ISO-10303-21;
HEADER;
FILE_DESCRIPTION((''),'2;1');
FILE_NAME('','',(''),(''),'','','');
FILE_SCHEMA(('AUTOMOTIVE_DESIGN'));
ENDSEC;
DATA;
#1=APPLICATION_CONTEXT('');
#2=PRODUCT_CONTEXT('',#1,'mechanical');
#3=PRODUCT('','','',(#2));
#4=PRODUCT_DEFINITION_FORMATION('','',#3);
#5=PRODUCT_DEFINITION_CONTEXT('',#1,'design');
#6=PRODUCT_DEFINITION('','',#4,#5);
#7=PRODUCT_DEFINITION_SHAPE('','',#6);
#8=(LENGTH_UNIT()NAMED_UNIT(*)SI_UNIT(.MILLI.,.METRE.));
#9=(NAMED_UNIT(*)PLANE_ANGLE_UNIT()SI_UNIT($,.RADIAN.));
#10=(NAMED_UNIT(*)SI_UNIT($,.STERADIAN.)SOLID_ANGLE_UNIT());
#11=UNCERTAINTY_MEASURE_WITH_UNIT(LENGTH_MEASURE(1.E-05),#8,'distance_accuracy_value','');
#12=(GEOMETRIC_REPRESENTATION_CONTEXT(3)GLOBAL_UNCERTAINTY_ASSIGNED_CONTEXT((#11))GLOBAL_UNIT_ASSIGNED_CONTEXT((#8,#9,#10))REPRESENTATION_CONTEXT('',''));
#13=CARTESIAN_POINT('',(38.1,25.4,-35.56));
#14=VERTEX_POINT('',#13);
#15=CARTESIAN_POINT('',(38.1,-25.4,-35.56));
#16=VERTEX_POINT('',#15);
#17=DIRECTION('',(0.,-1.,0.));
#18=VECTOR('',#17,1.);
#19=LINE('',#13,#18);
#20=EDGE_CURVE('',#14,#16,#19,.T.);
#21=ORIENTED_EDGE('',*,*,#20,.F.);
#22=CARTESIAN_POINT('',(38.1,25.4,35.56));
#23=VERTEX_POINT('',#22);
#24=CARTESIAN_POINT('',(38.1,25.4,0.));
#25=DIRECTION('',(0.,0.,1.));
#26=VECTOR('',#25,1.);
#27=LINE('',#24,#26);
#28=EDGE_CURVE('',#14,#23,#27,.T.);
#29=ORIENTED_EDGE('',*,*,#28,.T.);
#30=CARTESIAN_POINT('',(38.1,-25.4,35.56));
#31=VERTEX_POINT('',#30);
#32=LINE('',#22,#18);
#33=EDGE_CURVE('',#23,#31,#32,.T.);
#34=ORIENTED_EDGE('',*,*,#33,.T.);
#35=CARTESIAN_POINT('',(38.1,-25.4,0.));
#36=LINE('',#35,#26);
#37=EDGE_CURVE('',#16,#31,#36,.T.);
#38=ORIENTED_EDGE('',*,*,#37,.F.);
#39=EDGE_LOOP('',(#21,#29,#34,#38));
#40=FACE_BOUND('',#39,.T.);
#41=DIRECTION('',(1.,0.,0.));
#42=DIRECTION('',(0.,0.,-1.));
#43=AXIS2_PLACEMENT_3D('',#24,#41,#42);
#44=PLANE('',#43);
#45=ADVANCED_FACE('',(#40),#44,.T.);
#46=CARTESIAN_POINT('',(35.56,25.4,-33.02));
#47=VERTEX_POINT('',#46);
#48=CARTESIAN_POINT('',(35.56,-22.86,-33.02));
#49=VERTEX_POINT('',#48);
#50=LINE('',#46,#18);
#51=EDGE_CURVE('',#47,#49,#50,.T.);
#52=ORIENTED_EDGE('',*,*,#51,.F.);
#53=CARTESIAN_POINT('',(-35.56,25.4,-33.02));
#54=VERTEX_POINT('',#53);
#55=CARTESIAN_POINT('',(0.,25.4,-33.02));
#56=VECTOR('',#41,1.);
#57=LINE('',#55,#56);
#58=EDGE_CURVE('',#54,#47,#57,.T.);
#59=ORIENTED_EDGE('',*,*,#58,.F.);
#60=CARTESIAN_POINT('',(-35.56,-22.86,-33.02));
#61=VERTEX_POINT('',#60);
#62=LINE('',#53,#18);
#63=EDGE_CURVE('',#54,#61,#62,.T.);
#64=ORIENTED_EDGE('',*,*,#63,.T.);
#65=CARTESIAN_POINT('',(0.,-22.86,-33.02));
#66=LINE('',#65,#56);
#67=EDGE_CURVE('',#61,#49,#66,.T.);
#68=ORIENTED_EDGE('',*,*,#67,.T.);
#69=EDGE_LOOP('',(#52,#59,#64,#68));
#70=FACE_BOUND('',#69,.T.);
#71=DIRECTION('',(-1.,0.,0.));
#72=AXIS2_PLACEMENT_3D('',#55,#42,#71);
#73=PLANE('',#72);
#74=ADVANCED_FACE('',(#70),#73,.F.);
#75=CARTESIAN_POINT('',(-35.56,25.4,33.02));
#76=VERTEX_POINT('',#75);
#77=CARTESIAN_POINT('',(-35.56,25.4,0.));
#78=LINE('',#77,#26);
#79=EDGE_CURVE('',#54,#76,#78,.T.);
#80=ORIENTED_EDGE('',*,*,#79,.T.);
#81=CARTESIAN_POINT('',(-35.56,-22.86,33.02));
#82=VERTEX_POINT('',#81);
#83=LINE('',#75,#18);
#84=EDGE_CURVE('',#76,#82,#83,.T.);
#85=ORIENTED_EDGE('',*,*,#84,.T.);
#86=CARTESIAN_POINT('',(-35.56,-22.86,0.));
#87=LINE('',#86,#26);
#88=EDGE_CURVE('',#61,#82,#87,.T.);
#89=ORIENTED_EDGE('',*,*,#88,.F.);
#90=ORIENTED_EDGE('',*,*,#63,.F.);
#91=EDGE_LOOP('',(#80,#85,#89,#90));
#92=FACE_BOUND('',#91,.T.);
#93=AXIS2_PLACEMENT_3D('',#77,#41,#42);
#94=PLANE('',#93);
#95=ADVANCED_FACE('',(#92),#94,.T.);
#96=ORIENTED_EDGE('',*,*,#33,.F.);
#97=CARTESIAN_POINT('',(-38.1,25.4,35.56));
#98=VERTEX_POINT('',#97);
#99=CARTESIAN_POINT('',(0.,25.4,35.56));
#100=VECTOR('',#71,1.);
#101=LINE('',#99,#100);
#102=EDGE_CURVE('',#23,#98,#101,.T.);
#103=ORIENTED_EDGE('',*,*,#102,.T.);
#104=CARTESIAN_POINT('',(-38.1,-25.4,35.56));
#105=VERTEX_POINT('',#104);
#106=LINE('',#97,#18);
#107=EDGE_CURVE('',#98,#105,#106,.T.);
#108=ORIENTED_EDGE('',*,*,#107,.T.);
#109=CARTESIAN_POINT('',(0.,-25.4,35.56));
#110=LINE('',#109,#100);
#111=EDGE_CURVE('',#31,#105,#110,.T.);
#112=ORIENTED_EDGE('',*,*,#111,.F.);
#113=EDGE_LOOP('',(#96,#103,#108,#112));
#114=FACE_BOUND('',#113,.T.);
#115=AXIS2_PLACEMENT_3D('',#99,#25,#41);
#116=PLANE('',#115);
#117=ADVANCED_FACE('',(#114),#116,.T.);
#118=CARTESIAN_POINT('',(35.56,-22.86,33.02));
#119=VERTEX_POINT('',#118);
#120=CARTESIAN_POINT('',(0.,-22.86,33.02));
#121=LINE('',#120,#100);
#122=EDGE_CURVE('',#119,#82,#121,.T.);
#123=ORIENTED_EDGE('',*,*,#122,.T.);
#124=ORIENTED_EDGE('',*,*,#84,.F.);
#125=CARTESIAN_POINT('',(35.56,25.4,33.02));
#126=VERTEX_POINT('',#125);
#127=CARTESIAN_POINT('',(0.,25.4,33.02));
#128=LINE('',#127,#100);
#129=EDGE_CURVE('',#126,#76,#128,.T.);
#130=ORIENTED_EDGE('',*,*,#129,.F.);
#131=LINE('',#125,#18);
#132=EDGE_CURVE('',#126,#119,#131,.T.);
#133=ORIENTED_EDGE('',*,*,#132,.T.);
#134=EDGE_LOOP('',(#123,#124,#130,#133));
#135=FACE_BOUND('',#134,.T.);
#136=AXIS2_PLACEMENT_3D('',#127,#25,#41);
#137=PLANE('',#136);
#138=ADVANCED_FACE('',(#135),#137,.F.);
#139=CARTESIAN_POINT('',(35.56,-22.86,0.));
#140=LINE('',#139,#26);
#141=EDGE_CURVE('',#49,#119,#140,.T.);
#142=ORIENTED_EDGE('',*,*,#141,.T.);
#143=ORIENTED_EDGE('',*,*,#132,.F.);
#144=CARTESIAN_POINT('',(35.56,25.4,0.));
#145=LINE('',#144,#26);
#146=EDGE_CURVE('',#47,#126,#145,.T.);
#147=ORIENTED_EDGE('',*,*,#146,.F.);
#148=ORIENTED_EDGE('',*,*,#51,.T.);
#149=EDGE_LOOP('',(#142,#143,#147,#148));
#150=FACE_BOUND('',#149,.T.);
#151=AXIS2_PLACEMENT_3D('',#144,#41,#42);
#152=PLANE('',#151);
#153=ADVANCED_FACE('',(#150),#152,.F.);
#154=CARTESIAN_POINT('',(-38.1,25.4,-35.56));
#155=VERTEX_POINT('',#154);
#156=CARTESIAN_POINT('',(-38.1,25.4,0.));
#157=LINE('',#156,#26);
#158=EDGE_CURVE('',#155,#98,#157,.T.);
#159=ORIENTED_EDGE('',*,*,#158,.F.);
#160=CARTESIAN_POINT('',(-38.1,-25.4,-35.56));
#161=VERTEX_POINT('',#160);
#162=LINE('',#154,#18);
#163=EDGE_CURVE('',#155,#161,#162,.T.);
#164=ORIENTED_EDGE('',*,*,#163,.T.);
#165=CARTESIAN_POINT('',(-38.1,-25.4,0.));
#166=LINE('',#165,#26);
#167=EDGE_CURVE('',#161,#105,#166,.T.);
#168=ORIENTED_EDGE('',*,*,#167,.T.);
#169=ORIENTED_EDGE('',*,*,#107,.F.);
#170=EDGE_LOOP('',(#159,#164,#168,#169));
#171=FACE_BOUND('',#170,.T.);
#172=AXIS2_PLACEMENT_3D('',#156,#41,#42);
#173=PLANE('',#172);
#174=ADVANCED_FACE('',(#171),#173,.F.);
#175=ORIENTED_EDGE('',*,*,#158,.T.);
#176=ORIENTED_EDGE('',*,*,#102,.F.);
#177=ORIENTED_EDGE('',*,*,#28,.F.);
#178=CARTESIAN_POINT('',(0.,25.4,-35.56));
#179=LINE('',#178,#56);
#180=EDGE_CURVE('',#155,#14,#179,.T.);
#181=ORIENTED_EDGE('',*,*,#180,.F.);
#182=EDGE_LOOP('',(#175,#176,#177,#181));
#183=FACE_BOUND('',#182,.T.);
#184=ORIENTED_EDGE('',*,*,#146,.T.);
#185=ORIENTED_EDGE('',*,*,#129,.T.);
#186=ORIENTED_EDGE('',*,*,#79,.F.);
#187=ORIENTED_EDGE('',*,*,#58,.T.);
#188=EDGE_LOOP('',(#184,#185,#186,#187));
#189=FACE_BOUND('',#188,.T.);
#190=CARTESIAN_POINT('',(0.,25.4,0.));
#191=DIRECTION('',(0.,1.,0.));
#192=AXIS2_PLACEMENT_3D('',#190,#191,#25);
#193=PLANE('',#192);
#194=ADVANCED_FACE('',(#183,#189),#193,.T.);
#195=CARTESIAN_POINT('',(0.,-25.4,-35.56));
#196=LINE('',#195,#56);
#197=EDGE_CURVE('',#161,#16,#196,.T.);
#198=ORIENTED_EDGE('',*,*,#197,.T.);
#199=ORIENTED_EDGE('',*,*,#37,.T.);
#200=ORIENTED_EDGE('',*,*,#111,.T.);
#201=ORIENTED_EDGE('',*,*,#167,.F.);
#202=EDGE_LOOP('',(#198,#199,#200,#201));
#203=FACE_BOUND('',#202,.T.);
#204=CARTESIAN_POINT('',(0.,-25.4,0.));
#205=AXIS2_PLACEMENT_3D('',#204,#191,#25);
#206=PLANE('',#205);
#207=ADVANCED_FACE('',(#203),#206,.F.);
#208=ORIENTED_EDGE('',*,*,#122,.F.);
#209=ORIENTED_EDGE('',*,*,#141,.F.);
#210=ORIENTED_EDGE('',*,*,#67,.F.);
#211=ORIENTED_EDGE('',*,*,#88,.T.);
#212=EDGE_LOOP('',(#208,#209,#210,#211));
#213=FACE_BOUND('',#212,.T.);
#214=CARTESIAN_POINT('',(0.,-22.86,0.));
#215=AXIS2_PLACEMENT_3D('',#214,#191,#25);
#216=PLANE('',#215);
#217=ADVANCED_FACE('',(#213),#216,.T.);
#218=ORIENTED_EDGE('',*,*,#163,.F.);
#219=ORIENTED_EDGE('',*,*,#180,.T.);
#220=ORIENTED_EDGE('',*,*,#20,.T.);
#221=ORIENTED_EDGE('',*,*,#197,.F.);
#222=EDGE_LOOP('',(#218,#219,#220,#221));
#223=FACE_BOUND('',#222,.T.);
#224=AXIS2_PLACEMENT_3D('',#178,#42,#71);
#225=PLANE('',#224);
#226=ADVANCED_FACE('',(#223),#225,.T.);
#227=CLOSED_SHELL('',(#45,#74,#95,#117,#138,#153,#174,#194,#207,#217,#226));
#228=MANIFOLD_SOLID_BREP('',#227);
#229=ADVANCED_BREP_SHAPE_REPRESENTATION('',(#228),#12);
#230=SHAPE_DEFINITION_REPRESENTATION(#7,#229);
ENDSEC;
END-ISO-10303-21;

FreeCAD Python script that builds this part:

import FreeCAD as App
import Part
import Sketcher
from FreeCAD import Vector
Q = App.Units.Quantity


def faces_at(feature, points):
    """Names of the faces that lie closest to the given points."""
    faces = feature.Shape.Faces
    near = lambda p: min(range(len(faces)), key=lambda i: faces[i].distToShape(Part.Vertex(*p))[0])
    return sorted({f"Face{near(p) + 1}" for p in points})

doc = App.newDocument("Part")
body = doc.addObject("PartDesign::Body", "Body")

sketch1 = doc.addObject("Sketcher::SketchObject", "Sketch")
body.addObject(sketch1)
sketch1.AttachmentSupport = (doc.XZ_Plane, [""])
sketch1.MapMode = "FlatFace"
sketch1.addGeometry([
    Part.LineSegment(Vector(-38, -36, 0), Vector(-38, 36, 0)),
    Part.LineSegment(Vector(-38, 36, 0), Vector(38, 36, 0)),
    Part.LineSegment(Vector(38, 36, 0), Vector(38, -36, 0)),
    Part.LineSegment(Vector(38, -36, 0), Vector(-38, -36, 0)),
], False)
sketch1.addConstraint([
    Sketcher.Constraint("Coincident", 0, 2, 1, 1),
    Sketcher.Constraint("Coincident", 1, 2, 2, 1),
    Sketcher.Constraint("Coincident", 2, 2, 3, 1),
    Sketcher.Constraint("Coincident", 3, 2, 0, 1),
    Sketcher.Constraint("Vertical", 0),
    Sketcher.Constraint("Horizontal", 1),
    Sketcher.Constraint("Vertical", 2),
    Sketcher.Constraint("Horizontal", 3),
    Sketcher.Constraint("Symmetric", 0, 2, 2, 2, -1, 1),
    Sketcher.Constraint("DistanceX", 1, 1, 1, 2, Q("3 in")),
    Sketcher.Constraint("DistanceY", 0, 1, 0, 2, Q("2.8 in")),
])
pad1 = doc.addObject("PartDesign::Pad", "Pad")
body.addObject(pad1)
pad1.Profile = sketch1
pad1.Length = Q("2 in")
pad1.Midplane = True
doc.recompute()

thickness = doc.addObject("PartDesign::Thickness", "Thickness")
body.addObject(thickness)
thickness.Base = (pad1, faces_at(pad1, [(0, 25.4, 0)]))
thickness.Value = Q("0.1 in")
thickness.Reversed = True
thickness.Join = "Intersection"

doc.recompute()
